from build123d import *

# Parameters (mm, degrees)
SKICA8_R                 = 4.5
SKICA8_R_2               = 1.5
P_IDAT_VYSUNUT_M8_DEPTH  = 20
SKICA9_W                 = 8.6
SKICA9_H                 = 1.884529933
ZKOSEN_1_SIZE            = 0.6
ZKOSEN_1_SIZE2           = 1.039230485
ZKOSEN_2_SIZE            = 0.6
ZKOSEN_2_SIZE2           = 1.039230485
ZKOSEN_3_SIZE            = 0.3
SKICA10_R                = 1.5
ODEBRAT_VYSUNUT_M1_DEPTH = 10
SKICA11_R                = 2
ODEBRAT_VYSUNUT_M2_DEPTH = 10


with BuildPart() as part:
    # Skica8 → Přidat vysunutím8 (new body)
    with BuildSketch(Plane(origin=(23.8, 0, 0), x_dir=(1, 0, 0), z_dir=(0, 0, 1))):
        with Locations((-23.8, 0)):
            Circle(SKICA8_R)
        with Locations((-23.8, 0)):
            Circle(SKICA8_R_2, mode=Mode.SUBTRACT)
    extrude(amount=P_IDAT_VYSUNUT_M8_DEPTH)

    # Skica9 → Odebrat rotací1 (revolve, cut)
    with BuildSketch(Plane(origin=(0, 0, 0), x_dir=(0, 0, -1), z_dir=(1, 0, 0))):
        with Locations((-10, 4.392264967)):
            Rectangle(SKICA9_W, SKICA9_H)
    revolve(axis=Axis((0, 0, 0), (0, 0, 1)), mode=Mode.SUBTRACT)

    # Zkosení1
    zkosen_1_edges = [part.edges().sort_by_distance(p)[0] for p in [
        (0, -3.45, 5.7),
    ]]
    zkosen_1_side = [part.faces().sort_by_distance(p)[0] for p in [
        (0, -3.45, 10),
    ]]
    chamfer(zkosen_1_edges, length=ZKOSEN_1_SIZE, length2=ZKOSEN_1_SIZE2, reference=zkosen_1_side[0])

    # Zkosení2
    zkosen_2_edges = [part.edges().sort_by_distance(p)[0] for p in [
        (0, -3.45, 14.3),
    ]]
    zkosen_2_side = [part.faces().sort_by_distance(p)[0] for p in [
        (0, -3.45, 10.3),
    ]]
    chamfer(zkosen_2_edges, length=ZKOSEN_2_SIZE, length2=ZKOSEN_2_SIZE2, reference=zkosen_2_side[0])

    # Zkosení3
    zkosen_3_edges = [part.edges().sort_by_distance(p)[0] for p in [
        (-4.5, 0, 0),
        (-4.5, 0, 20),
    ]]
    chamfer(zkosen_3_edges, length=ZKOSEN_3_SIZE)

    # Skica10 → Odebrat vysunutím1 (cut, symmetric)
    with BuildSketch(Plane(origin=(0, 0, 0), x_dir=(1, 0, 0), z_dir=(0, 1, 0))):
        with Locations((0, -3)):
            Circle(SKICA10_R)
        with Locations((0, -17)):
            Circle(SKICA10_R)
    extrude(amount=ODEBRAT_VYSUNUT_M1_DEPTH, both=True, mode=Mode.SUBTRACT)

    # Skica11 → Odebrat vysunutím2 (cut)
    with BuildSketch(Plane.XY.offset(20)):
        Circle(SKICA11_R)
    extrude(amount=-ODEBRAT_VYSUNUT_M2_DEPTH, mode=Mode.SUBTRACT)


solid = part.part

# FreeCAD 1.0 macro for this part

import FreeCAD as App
import Part
import Sketcher
from FreeCAD import Vector


def edges_at(feature, points):
    """Names of the edges that pass closest to the given points."""
    edges = feature.Shape.Edges
    near = lambda p: min(range(len(edges)), key=lambda i: edges[i].distToShape(Part.Vertex(*p))[0])
    return sorted({f"Edge{near(p) + 1}" for p in points})


def add_polygon(sketch, points):
    """Adds a closed chain of lines whose ends are joined by coincident constraints."""
    first, n = sketch.GeometryCount, len(points)
    for a, b in zip(points, points[1:] + points[:1]):
        sketch.addGeometry(Part.LineSegment(App.Vector(*a, 0), App.Vector(*b, 0)), False)
    for i in range(n):
        sketch.addConstraint(Sketcher.Constraint("Coincident", first + i, 2, first + (i + 1) % n, 1))

doc = App.newDocument("Part")
params = doc.addObject("Spreadsheet::Sheet", "Params")
for row, (alias, value) in enumerate([
    ("sketch1_diameter", "9 mm"),
    ("sketch1_diameter2", "3 mm"),
    ("pad1_length", "20 mm"),
    ("sketch2_height", "8.6 mm"),
    ("groove_angle", "360 deg"),
    ("chamfer_size", "0.6 mm"),
    ("chamfer_size2", "1.03923 mm"),
    ("chamfer2_size", "0.6 mm"),
    ("chamfer2_size2", "1.03923 mm"),
    ("chamfer3_size", "0.3 mm"),
    ("sketch3_diameter", "3 mm"),
    ("pocket1_length", "20 mm"),
    ("sketch4_diameter", "4 mm"),
    ("pocket2_length", "10 mm"),
], start=1):
    params.set(f"A{row}", alias)
    params.set(f"B{row}", "=" + value)
    params.setAlias(f"B{row}", alias)

body = doc.addObject("PartDesign::Body", "Body")

# Sketch on XY plane
sketch1 = body.newObject("Sketcher::SketchObject", "Sketch")
sketch1.AttachmentSupport = (doc.getObject("XY_Plane"), [""])
sketch1.MapMode = "FlatFace"
sketch1.addGeometry(Part.Circle(Vector(0, 0, 0), Vector(0, 0, 1), 4.5), False)
sketch1.addGeometry(Part.Circle(Vector(0, 0, 0), Vector(0, 0, 1), 1.5), False)
sketch1.addConstraint(Sketcher.Constraint("Coincident", 0, 3, -1, 1))
sketch1.addConstraint(Sketcher.Constraint("Coincident", 1, 3, -1, 1))
sketch1.addConstraint(Sketcher.Constraint("Diameter", 0, 9.0))
sketch1.addConstraint(Sketcher.Constraint("Diameter", 1, 3.0))
sketch1.setExpression("Constraints[2]", "Params.sketch1_diameter")
sketch1.setExpression("Constraints[3]", "Params.sketch1_diameter2")
pad1 = body.newObject("PartDesign::Pad", "Pad")
pad1.Profile = sketch1
pad1.setExpression("Length", "Params.pad1_length")

# Sketch on YZ plane
sketch2 = body.newObject("Sketcher::SketchObject", "Sketch001")
sketch2.AttachmentSupport = (doc.getObject("YZ_Plane"), [""])
sketch2.MapMode = "FlatFace"
add_polygon(sketch2, [(5.3, 14.3), (3.5, 14.3), (3.5, 5.7), (5.3, 5.7)])  # lines 0-3
sketch2.addConstraint(Sketcher.Constraint("Horizontal", 0))
sketch2.addConstraint(Sketcher.Constraint("Vertical", 1))
sketch2.addConstraint(Sketcher.Constraint("Horizontal", 2))
sketch2.addConstraint(Sketcher.Constraint("Vertical", 3))
sketch2.addConstraint(Sketcher.Constraint("DistanceY", 1, 2, 1, 1, 8.6))
sketch2.addConstraint(Sketcher.Constraint("DistanceY", -1, 1, 0, 2, 14.3))
sketch2.addConstraint(Sketcher.Constraint("DistanceX", -1, 1, 0, 2, 3.45))
sketch2.addConstraint(Sketcher.Constraint("DistanceX", 0, 2, 0, 1, 1.88453))
sketch2.setExpression("Constraints[8]", "Params.sketch2_height")
groove = body.newObject("PartDesign::Groove", "Groove")
groove.Profile = sketch2
groove.ReferenceAxis = (sketch2, ["V_Axis"])
groove.setExpression("Angle", "Params.groove_angle")
doc.recompute()

chamfer = body.newObject("PartDesign::Chamfer", "Chamfer")
chamfer.Base = (groove, edges_at(groove, [(0, -3.45, 5.7)]))
chamfer.ChamferType = "Two distances"
chamfer.setExpression("Size", "Params.chamfer_size")
chamfer.setExpression("Size2", "Params.chamfer_size2")
chamfer.FlipDirection = True
doc.recompute()

chamfer2 = body.newObject("PartDesign::Chamfer", "Chamfer001")
chamfer2.Base = (chamfer, edges_at(chamfer, [(0, -3.45, 14.3)]))
chamfer2.ChamferType = "Two distances"
chamfer2.setExpression("Size", "Params.chamfer2_size")
chamfer2.setExpression("Size2", "Params.chamfer2_size2")
doc.recompute()

chamfer3 = body.newObject("PartDesign::Chamfer", "Chamfer002")
chamfer3.Base = (chamfer2, edges_at(chamfer2, [(-4.5, 0, 0), (-4.5, 0, 20)]))
chamfer3.setExpression("Size", "Params.chamfer3_size")

# Sketch on XZ plane
sketch3 = body.newObject("Sketcher::SketchObject", "Sketch002")
sketch3.AttachmentSupport = (doc.getObject("XZ_Plane"), [""])
sketch3.MapMode = "FlatFace"
sketch3.addGeometry(Part.Circle(Vector(0, 3, 0), Vector(0, 0, 1), 1.5), False)
sketch3.addGeometry(Part.Circle(Vector(0, 17, 0), Vector(0, 0, 1), 1.5), False)
sketch3.addConstraint(Sketcher.Constraint("Equal", 0, 1))
sketch3.addConstraint(Sketcher.Constraint("PointOnObject", 0, 3, -2))
sketch3.addConstraint(Sketcher.Constraint("PointOnObject", 1, 3, -2))
sketch3.addConstraint(Sketcher.Constraint("Diameter", 0, 3.0))
sketch3.addConstraint(Sketcher.Constraint("DistanceY", -1, 1, 0, 3, 3.0))
sketch3.addConstraint(Sketcher.Constraint("DistanceY", -1, 1, 1, 3, 17.0))
sketch3.setExpression("Constraints[3]", "Params.sketch3_diameter")
pocket1 = body.newObject("PartDesign::Pocket", "Pocket")
pocket1.Profile = sketch3
pocket1.setExpression("Length", "Params.pocket1_length")
pocket1.Midplane = True

# Sketch on XY plane
sketch4 = body.newObject("Sketcher::SketchObject", "Sketch003")
sketch4.AttachmentSupport = (doc.getObject("XY_Plane"), [""])
sketch4.MapMode = "FlatFace"
sketch4.AttachmentOffset = App.Placement(Vector(0, 0, 20), App.Rotation())
sketch4.addGeometry(Part.Circle(Vector(0, 0, 0), Vector(0, 0, 1), 2), False)
sketch4.addConstraint(Sketcher.Constraint("Coincident", 0, 3, -1, 1))
sketch4.addConstraint(Sketcher.Constraint("Diameter", 0, 4.0))
sketch4.setExpression("Constraints[1]", "Params.sketch4_diameter")
pocket2 = body.newObject("PartDesign::Pocket", "Pocket001")
pocket2.Profile = sketch4
pocket2.setExpression("Length", "Params.pocket2_length")

doc.recompute()
